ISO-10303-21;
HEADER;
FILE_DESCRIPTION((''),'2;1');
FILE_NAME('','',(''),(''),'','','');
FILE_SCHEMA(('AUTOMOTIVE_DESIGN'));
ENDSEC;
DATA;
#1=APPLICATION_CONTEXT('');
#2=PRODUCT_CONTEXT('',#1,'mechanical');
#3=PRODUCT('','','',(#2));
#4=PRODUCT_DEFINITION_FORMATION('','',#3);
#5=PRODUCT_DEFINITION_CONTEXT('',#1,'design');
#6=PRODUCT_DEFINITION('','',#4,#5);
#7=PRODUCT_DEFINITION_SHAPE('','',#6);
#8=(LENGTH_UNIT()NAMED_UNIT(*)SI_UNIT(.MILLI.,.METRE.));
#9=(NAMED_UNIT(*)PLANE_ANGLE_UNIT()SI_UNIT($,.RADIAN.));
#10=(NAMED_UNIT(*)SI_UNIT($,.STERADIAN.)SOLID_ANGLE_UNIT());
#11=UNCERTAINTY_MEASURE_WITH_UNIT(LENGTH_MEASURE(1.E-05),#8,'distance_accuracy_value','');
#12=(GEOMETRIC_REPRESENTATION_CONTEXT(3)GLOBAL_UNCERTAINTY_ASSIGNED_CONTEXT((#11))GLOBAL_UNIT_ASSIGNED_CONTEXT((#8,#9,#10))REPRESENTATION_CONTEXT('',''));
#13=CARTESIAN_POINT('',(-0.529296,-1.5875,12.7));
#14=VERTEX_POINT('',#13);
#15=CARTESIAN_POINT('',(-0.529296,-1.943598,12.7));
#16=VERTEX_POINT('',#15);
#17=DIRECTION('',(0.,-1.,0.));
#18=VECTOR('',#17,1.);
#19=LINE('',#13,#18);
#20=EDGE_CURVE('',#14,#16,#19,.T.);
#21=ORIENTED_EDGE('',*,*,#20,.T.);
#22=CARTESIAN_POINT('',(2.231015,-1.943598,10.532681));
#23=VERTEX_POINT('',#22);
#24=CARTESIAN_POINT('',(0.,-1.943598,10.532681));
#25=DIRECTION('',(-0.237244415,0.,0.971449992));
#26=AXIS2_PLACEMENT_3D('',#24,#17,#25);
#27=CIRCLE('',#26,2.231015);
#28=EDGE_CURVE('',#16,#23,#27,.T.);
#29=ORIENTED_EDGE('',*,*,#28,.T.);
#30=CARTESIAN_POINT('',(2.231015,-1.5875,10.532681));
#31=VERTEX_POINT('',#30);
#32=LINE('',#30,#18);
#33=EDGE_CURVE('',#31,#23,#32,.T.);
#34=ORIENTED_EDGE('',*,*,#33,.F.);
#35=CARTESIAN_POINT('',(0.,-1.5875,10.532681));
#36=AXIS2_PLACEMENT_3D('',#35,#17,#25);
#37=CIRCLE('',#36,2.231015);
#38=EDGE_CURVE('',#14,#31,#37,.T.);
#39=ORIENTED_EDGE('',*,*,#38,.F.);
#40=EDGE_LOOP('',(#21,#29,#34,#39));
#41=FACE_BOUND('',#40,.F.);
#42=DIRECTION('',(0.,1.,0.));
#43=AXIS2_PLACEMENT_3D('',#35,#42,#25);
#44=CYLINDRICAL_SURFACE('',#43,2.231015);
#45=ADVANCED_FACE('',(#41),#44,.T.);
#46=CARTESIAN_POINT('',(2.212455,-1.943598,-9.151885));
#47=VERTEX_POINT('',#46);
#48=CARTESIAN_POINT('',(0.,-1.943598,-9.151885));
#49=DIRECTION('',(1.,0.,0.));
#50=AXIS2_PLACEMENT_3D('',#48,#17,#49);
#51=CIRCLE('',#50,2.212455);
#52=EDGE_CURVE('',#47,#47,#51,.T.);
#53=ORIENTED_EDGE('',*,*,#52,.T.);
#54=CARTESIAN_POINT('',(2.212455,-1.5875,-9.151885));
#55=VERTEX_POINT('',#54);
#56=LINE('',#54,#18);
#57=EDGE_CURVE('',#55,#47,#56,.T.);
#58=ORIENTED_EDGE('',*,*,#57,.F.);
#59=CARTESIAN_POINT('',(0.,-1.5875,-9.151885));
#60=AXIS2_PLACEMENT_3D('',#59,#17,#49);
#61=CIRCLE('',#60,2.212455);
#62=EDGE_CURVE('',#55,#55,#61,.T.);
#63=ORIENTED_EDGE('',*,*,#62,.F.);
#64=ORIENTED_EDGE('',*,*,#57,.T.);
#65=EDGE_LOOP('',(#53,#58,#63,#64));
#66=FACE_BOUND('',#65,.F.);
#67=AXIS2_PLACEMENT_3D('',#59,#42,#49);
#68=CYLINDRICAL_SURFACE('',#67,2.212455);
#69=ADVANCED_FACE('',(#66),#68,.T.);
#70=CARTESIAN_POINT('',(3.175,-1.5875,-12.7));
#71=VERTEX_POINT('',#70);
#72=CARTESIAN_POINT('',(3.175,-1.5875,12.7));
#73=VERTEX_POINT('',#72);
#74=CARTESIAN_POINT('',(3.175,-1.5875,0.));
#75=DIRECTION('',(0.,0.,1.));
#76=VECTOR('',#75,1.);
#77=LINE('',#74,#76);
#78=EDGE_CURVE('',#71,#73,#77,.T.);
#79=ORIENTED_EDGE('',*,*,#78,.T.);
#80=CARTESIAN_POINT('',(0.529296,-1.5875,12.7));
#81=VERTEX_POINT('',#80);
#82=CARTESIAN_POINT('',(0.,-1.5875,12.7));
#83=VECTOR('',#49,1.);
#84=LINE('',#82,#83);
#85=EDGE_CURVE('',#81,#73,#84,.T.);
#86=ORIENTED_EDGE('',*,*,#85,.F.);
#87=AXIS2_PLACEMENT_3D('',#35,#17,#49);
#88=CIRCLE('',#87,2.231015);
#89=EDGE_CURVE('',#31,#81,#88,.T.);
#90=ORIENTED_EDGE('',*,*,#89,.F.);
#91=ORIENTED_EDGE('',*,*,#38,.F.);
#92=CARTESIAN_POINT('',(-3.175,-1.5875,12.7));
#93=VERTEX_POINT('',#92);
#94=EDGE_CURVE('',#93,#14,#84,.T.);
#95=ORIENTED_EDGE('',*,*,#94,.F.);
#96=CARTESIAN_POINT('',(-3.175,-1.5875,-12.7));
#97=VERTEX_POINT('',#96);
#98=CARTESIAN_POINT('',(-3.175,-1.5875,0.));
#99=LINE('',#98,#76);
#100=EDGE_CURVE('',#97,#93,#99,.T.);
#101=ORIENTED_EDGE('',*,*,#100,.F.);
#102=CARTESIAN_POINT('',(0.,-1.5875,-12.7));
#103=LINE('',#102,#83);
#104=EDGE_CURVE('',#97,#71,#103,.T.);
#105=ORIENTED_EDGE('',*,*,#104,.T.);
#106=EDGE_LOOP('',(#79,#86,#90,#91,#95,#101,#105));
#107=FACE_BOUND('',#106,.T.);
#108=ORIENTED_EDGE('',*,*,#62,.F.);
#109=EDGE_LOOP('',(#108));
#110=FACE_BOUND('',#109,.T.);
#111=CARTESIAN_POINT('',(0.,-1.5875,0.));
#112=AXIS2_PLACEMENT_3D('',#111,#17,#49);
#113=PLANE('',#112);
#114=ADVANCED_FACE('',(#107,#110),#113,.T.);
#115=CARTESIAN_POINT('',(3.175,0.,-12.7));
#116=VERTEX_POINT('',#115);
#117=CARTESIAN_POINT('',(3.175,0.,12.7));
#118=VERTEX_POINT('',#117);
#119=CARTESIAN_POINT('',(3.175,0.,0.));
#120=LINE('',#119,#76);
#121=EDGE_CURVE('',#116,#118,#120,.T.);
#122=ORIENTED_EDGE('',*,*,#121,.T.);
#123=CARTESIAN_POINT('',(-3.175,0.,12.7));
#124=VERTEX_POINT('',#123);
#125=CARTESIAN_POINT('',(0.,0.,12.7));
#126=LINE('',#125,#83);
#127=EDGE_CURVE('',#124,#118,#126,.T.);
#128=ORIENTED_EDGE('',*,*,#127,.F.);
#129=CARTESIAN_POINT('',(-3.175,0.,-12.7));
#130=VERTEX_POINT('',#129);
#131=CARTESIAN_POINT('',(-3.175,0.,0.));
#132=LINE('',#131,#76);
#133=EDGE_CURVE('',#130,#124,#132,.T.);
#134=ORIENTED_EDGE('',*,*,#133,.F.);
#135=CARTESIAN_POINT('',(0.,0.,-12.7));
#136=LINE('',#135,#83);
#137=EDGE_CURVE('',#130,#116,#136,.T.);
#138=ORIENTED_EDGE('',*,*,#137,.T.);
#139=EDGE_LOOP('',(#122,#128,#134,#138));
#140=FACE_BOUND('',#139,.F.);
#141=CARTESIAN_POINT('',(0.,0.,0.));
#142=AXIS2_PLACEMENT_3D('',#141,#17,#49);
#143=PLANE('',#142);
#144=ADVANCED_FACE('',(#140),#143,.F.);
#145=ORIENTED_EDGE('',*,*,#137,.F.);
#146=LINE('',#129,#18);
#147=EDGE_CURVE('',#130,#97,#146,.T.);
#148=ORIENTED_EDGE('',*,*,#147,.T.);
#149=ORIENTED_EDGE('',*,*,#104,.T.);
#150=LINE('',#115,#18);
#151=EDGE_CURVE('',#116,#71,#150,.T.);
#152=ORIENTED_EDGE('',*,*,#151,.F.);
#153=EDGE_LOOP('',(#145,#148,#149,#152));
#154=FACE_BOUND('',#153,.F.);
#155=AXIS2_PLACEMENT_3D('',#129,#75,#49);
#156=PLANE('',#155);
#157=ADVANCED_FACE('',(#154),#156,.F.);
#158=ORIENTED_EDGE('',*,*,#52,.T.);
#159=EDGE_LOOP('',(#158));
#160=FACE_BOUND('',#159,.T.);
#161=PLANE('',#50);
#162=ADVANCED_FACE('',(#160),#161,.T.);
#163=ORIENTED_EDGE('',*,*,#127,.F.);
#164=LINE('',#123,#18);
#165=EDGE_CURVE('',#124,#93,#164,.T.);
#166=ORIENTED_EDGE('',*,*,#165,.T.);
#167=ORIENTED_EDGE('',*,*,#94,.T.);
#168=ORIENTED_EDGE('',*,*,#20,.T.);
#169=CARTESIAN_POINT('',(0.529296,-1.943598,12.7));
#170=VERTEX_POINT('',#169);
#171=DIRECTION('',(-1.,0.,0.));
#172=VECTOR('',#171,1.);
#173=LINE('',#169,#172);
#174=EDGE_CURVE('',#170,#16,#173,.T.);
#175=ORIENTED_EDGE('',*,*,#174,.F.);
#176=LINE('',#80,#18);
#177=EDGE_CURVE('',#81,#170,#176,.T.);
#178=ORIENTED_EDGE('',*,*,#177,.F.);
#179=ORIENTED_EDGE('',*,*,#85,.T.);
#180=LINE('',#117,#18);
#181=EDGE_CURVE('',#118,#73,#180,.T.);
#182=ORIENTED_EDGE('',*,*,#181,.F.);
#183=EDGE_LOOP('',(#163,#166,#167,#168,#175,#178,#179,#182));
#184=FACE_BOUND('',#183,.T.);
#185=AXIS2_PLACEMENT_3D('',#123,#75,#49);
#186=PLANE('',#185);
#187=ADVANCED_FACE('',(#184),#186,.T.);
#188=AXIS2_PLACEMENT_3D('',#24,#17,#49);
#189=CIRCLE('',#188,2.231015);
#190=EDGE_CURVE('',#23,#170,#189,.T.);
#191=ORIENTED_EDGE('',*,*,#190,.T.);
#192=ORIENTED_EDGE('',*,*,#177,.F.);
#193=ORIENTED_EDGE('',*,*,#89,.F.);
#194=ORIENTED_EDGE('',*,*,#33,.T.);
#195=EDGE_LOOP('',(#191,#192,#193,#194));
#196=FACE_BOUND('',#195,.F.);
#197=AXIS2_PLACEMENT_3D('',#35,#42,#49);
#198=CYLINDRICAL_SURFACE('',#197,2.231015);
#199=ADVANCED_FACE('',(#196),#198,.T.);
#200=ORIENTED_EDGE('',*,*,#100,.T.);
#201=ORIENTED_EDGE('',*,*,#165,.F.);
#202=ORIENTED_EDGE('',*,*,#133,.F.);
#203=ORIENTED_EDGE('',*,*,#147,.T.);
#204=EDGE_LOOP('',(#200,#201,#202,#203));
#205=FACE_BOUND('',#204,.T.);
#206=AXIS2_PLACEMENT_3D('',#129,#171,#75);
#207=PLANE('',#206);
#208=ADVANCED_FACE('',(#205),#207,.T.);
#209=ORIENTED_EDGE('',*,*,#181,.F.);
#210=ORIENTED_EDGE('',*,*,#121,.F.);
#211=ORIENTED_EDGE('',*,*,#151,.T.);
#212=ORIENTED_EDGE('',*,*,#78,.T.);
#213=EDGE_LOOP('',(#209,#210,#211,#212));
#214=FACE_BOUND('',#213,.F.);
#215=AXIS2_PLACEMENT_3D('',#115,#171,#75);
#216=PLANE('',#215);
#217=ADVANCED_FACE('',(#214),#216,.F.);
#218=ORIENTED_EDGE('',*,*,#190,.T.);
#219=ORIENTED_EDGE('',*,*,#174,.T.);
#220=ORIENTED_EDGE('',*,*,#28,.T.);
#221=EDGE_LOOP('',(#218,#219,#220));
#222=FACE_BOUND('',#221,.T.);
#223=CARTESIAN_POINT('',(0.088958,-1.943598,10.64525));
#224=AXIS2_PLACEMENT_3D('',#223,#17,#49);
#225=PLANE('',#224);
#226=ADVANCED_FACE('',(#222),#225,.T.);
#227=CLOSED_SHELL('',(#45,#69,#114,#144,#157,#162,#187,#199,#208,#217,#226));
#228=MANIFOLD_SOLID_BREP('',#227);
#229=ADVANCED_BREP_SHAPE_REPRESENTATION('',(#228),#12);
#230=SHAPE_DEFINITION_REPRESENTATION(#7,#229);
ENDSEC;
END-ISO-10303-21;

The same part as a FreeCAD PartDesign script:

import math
import FreeCAD as App
import Part
import Sketcher
Q = App.Units.Quantity

doc = App.newDocument("Part")
body = doc.addObject("PartDesign::Body", "Body")

sketch1 = body.newObject("Sketcher::SketchObject", "Sketch")
sketch1.AttachmentSupport = (doc.getObject("XZ_Plane"), [""])
sketch1.MapMode = "FlatFace"
sketch1.addGeometry([
    Part.LineSegment(App.Vector(-3, 13, 0), App.Vector(-3, -13, 0)),
    Part.LineSegment(App.Vector(-3, -13, 0), App.Vector(3, -13, 0)),
    Part.LineSegment(App.Vector(3, -13, 0), App.Vector(3, 13, 0)),
    Part.LineSegment(App.Vector(3, 13, 0), App.Vector(-3, 13, 0)),
], False)
sketch1.addConstraint([
    Sketcher.Constraint("Coincident", 0, 2, 1, 1),
    Sketcher.Constraint("Coincident", 1, 2, 2, 1),
    Sketcher.Constraint("Coincident", 2, 2, 3, 1),
    Sketcher.Constraint("Coincident", 3, 2, 0, 1),
    Sketcher.Constraint("Vertical", 0),
    Sketcher.Constraint("Horizontal", 1),
    Sketcher.Constraint("Vertical", 2),
    Sketcher.Constraint("Horizontal", 3),
    Sketcher.Constraint("Symmetric", 0, 2, 2, 2, -1, 1),
    Sketcher.Constraint("DistanceY", 0, 2, 0, 1, Q("1 in")),
    Sketcher.Constraint("DistanceX", 1, 1, 1, 2, Q("0.25 in")),
])
pad1 = body.newObject("PartDesign::Pad", "Pad")
pad1.Profile = sketch1
pad1.Length = Q("0.0625 in")

sketch2 = body.newObject("Sketcher::SketchObject", "Sketch001")
sketch2.AttachmentSupport = (doc.getObject("XZ_Plane"), [""])
sketch2.MapMode = "FlatFace"
sketch2.AttachmentOffset = App.Placement(App.Vector(0, 0, 0.0625 * 25.4), App.Rotation())
sketch2.addGeometry([
    Part.Circle(App.Vector(0, -9.2, 0), App.Vector(0, 0, 1), 2.2),
    Part.ArcOfCircle(Part.Circle(App.Vector(0, 10.5, 0), App.Vector(0, 0, 1), 2.2), math.radians(104), math.radians(360)),
    Part.ArcOfCircle(Part.Circle(App.Vector(0, 10.5, 0), App.Vector(0, 0, 1), 2.2), math.radians(0), math.radians(76)),
    Part.LineSegment(App.Vector(0.5, 12.7, 0), App.Vector(-0.5, 12.7, 0)),
], False)
sketch2.addConstraint([
    Sketcher.Constraint("Tangent", 1, 2, 2, 1),
    Sketcher.Constraint("Coincident", 2, 2, 3, 1),
    Sketcher.Constraint("Coincident", 3, 2, 1, 1),
    Sketcher.Constraint("Horizontal", 3),
    Sketcher.Constraint("Equal", 1, 2),
    Sketcher.Constraint("PointOnObject", 0, 3, -2),
    Sketcher.Constraint("PointOnObject", 1, 3, -2),
    Sketcher.Constraint("Horizontal", 2, 3, 1, 2),
    Sketcher.Constraint("DistanceY", -1, 1, 2, 2, Q("0.5 in")),
    Sketcher.Constraint("Diameter", 0, 4.424911),
    Sketcher.Constraint("Radius", 1, 2.231015),
    Sketcher.Constraint("DistanceX", 3, 2, 3, 1, 1.058591),
    Sketcher.Constraint("DistanceY", 0, 3, -1, 1, 9.151885),
])
pad2 = body.newObject("PartDesign::Pad", "Pad001")
pad2.Profile = sketch2
pad2.Length = 0.356098

doc.recompute()
